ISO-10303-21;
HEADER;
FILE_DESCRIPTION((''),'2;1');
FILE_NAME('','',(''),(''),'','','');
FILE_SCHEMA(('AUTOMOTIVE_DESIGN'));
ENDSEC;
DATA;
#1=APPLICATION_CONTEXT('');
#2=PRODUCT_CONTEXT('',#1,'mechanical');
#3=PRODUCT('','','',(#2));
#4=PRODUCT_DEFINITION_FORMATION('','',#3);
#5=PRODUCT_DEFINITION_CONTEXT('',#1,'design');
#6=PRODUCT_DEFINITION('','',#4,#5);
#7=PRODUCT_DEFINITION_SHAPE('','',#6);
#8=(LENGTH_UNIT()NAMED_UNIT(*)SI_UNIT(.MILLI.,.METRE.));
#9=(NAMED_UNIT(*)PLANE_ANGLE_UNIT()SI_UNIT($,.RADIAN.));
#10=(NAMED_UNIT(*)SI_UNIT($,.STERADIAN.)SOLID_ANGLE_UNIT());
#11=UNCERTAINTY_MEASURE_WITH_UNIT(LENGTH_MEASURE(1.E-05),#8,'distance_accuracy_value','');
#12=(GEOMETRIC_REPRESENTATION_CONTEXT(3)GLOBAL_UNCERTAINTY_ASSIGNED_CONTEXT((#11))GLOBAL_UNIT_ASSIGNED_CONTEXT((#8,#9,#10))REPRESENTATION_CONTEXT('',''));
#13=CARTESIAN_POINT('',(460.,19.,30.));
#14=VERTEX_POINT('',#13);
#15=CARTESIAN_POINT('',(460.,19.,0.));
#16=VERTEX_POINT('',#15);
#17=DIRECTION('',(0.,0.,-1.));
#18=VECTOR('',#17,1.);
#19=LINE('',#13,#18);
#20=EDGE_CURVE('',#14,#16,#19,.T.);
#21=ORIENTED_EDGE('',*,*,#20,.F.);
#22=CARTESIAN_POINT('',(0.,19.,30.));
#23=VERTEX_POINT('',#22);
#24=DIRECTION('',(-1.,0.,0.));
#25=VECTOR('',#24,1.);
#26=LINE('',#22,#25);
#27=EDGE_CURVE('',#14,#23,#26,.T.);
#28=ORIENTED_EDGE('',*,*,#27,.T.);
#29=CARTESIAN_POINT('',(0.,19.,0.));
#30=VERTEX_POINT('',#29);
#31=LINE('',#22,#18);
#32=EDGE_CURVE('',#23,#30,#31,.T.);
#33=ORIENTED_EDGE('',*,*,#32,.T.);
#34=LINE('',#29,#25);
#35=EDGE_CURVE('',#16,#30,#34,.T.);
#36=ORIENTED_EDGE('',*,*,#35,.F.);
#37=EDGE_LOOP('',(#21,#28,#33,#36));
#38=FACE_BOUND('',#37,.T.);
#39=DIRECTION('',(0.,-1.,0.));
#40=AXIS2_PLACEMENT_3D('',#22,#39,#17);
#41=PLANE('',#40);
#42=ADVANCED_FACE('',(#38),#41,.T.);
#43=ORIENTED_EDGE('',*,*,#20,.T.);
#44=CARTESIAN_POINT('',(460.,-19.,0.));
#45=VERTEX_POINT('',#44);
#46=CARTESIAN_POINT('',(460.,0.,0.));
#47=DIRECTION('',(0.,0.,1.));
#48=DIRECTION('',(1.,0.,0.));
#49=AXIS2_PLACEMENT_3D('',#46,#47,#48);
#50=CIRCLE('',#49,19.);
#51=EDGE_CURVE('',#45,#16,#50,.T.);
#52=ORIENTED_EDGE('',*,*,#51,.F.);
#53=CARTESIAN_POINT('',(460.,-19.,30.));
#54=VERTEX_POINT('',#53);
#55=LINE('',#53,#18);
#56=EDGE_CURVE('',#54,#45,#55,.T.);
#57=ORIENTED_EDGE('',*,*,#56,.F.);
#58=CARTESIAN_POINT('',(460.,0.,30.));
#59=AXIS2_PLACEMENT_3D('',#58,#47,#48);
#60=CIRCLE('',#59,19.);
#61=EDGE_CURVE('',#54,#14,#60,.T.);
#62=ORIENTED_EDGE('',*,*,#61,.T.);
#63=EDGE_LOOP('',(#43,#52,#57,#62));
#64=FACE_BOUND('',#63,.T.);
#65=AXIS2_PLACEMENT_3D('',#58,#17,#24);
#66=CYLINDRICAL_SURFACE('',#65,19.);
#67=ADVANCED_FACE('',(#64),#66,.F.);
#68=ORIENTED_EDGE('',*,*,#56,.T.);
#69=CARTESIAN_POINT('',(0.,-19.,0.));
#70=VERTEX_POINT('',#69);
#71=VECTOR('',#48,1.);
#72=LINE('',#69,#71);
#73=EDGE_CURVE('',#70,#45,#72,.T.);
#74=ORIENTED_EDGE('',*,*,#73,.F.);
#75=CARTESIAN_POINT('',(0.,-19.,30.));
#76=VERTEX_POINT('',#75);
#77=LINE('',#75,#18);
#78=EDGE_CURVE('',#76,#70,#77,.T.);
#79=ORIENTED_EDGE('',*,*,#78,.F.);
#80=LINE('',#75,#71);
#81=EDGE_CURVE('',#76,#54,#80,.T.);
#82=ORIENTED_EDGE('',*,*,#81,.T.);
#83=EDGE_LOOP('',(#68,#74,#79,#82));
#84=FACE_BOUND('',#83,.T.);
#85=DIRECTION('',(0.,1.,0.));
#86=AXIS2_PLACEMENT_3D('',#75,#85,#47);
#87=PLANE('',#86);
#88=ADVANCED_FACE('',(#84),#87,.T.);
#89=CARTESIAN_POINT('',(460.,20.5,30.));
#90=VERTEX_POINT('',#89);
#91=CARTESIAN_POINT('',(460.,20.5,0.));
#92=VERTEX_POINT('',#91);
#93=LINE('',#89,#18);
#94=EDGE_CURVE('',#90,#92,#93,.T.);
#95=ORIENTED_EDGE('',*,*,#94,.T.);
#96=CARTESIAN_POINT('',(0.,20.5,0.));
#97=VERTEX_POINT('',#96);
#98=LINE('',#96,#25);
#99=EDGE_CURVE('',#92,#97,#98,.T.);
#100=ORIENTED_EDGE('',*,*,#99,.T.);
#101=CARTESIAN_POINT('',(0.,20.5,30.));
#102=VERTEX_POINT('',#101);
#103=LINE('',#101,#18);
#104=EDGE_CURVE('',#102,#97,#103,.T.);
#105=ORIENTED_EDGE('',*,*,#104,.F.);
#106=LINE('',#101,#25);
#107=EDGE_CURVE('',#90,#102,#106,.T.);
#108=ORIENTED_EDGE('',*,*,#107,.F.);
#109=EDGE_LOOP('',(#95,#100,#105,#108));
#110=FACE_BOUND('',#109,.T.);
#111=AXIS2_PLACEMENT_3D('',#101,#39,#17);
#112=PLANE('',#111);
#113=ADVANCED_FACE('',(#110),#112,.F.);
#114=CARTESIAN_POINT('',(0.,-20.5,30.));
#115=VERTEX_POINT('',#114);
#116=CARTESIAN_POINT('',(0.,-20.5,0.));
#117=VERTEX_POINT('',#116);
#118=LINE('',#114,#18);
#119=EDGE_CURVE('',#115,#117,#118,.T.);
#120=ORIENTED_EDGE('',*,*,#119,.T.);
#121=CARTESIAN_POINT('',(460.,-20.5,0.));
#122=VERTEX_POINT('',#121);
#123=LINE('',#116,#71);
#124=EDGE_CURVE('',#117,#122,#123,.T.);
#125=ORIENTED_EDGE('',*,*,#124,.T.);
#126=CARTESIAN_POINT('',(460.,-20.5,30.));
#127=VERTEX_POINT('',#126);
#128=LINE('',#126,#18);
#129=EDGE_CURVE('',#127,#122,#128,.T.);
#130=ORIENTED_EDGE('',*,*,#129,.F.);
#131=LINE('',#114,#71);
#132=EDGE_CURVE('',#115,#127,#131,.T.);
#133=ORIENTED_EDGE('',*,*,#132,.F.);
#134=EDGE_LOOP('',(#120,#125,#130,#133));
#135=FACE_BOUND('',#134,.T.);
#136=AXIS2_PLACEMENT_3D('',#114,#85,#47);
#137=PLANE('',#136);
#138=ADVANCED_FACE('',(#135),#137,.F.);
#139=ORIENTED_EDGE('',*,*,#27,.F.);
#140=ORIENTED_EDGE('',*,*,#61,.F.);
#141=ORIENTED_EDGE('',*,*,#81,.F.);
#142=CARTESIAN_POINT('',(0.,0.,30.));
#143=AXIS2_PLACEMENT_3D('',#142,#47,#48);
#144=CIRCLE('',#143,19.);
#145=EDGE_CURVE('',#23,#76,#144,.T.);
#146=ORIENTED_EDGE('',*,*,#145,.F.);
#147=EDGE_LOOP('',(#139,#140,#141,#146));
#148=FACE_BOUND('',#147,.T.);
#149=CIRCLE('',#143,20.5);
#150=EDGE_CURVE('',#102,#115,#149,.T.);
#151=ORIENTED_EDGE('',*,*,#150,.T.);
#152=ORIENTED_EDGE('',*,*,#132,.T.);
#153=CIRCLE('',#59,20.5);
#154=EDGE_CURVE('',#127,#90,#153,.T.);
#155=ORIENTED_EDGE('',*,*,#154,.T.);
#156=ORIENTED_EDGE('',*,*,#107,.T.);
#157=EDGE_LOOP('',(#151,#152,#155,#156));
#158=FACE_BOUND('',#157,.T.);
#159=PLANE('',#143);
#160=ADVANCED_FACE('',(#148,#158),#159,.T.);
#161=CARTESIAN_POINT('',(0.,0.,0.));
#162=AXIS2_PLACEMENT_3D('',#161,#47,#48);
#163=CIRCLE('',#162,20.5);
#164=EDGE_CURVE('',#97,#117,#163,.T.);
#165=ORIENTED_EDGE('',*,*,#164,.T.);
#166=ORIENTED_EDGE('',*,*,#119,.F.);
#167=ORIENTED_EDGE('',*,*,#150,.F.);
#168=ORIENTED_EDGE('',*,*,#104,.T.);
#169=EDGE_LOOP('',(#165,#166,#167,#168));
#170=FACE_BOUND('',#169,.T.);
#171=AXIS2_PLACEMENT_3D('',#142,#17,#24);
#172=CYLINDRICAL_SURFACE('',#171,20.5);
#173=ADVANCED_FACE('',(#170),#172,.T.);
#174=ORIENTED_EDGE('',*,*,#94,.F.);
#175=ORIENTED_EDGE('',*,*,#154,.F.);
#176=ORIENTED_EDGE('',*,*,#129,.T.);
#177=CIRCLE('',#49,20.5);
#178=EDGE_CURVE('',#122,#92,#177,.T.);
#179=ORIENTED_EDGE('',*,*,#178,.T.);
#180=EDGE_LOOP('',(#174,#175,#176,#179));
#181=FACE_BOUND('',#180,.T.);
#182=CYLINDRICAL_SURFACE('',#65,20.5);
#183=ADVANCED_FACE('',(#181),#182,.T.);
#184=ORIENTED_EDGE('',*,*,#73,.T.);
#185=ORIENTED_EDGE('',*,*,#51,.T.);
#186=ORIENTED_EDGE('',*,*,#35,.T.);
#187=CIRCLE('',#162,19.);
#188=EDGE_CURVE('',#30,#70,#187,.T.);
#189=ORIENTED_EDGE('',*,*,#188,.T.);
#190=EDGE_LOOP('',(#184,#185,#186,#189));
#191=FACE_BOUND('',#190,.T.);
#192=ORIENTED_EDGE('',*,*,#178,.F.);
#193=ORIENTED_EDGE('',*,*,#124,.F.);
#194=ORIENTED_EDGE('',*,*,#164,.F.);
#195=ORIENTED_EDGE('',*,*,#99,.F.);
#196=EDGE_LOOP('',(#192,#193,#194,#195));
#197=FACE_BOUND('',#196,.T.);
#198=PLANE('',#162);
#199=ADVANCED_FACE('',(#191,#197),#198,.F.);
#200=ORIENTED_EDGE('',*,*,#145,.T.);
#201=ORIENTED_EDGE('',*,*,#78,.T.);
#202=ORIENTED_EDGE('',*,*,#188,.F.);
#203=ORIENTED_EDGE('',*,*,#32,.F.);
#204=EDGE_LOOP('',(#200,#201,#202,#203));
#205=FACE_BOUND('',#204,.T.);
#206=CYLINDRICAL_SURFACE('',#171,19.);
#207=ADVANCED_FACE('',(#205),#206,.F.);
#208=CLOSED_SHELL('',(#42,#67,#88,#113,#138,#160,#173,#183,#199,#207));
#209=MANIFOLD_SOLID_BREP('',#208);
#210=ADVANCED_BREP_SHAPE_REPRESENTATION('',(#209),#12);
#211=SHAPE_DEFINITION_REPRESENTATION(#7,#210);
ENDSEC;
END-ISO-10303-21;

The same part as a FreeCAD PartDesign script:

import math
import FreeCAD as App
import Part
import Sketcher

doc = App.newDocument("Part")
body = doc.addObject("PartDesign::Body", "Body")

# Sketch on XY plane
sketch1 = body.newObject("Sketcher::SketchObject", "Sketch")
sketch1.AttachmentSupport = (doc.getObject("XY_Plane"), [""])
sketch1.MapMode = "FlatFace"
sketch1.addGeometry([
    Part.LineSegment(App.Vector(460, 20, 0), App.Vector(0, 20, 0)),  # 0
    Part.ArcOfCircle(Part.Circle(App.Vector(0, 0, 0), App.Vector(0, 0, 1), 20), math.radians(90), math.radians(270)),  # 1
    Part.LineSegment(App.Vector(0, -20, 0), App.Vector(460, -20, 0)),  # 2
    Part.ArcOfCircle(Part.Circle(App.Vector(460, 0, 0), App.Vector(0, 0, 1), 20), math.radians(-90), math.radians(90)),  # 3
    Part.LineSegment(App.Vector(0, 19, 0), App.Vector(460, 19, 0)),  # 4
    Part.ArcOfCircle(Part.Circle(App.Vector(460, 0, 0), App.Vector(0, 0, 1), 19), math.radians(-90), math.radians(90)),  # 5
    Part.LineSegment(App.Vector(460, -19, 0), App.Vector(0, -19, 0)),  # 6
    Part.ArcOfCircle(Part.Circle(App.Vector(0, 0, 0), App.Vector(0, 0, 1), 19), math.radians(90), math.radians(270)),  # 7
], False)
sketch1.addConstraint([
    Sketcher.Constraint("Tangent", 0, 2, 1, 1),
    Sketcher.Constraint("Tangent", 1, 2, 2, 1),
    Sketcher.Constraint("Tangent", 2, 2, 3, 1),
    Sketcher.Constraint("Tangent", 3, 2, 0, 1),
    Sketcher.Constraint("Tangent", 4, 2, 5, 2),
    Sketcher.Constraint("Tangent", 5, 1, 6, 1),
    Sketcher.Constraint("Tangent", 6, 2, 7, 2),
    Sketcher.Constraint("Tangent", 7, 1, 4, 1),
    Sketcher.Constraint("Horizontal", 0),
    Sketcher.Constraint("Horizontal", 2),
    Sketcher.Constraint("Horizontal", 4),
    Sketcher.Constraint("Horizontal", 6),
    Sketcher.Constraint("Coincident", 1, 3, -1, 1),
    Sketcher.Constraint("Coincident", 7, 3, -1, 1),
    Sketcher.Constraint("Vertical", 5, 3, 2, 2),
    Sketcher.Constraint("Radius", 5, 19.0),
    Sketcher.Constraint("Radius", 1, 20.5),
    Sketcher.Constraint("DistanceX", 0, 2, 0, 1, 460.0),
])
pad1 = body.newObject("PartDesign::Pad", "Pad")
pad1.Profile = sketch1
pad1.Length = 30

doc.recompute()
